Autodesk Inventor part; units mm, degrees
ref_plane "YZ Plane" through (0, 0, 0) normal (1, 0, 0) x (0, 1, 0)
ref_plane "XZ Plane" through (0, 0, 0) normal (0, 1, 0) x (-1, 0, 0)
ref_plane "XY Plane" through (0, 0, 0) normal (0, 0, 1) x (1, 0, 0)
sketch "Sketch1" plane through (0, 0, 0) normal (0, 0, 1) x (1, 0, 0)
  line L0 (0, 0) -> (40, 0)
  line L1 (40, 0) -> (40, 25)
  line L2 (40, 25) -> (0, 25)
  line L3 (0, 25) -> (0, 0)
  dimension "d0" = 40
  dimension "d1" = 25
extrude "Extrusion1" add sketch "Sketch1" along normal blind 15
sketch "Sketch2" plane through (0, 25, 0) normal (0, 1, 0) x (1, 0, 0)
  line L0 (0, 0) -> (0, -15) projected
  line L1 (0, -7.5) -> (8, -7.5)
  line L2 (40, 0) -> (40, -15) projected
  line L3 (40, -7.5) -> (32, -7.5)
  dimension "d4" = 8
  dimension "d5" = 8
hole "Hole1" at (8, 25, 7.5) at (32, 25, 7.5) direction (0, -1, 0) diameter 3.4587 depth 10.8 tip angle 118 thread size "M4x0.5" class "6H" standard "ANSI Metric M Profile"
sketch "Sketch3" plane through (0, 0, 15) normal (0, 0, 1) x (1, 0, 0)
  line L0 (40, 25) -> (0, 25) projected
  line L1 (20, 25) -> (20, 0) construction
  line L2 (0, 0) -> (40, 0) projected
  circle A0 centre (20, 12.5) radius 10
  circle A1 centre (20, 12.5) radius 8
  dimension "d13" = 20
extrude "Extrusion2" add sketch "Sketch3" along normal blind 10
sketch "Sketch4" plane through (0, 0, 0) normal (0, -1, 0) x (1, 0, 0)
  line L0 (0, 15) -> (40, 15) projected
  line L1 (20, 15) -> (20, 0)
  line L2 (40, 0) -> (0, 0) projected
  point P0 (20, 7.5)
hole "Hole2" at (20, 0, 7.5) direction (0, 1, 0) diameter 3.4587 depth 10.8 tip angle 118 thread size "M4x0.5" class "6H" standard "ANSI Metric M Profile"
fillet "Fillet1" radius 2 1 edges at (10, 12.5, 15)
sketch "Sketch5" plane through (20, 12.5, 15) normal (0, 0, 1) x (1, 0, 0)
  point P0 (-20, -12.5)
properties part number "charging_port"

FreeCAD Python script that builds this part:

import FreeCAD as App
import Part
import Sketcher

V = App.Vector
Q = App.Units.Quantity


def edges_at(feature, points):
    """Names of the edges that pass closest to the given points."""
    edges = feature.Shape.Edges
    near = lambda p: min(range(len(edges)), key=lambda i: edges[i].distToShape(Part.Vertex(*p))[0])
    return sorted({f"Edge{near(p) + 1}" for p in points})

doc = App.newDocument("Part")
params = doc.addObject("Spreadsheet::Sheet", "Params")
for row, (alias, value) in enumerate([
    ("sketch1_width", "40 mm"),
    ("sketch1_height", "25 mm"),
    ("pad1_length", "15 mm"),
    ("hole_diameter", "3.4587 mm"),
    ("hole_depth", "10.8 mm"),
    ("sketch3_diameter", "20 mm"),
    ("sketch3_diameter2", "16 mm"),
    ("pad2_length", "10 mm"),
    ("hole2_diameter", "3.4587 mm"),
    ("hole2_depth", "10.8 mm"),
    ("fillet_radius", "2 mm"),
], start=1):
    params.set(f"A{row}", alias)
    params.set(f"B{row}", "=" + value)
    params.setAlias(f"B{row}", alias)

body = doc.addObject("PartDesign::Body", "Body")

# Sketch on XY plane
sketch1 = body.newObject("Sketcher::SketchObject", "Sketch")
sketch1.AttachmentSupport = (doc.getObject("XY_Plane"), [""])
sketch1.MapMode = "FlatFace"
sketch1.addGeometry([
    Part.LineSegment(V(0, 25, 0), V(0, 0, 0)),
    Part.LineSegment(V(0, 0, 0), V(40, 0, 0)),
    Part.LineSegment(V(40, 0, 0), V(40, 25, 0)),
    Part.LineSegment(V(40, 25, 0), V(0, 25, 0)),
], False)
sketch1.addConstraint([
    Sketcher.Constraint("Coincident", 0, 2, 1, 1),
    Sketcher.Constraint("Coincident", 1, 2, 2, 1),
    Sketcher.Constraint("Coincident", 2, 2, 3, 1),
    Sketcher.Constraint("Coincident", 3, 2, 0, 1),
    Sketcher.Constraint("Vertical", 0),
    Sketcher.Constraint("Horizontal", 1),
    Sketcher.Constraint("Vertical", 2),
    Sketcher.Constraint("Horizontal", 3),
    Sketcher.Constraint("Coincident", 0, 2, -1, 1),
    Sketcher.Constraint("DistanceX", 1, 1, 1, 2, Q("40 mm")),
    Sketcher.Constraint("DistanceY", 0, 2, 0, 1, Q("25 mm")),
])
sketch1.setExpression("Constraints[9]", "Params.sketch1_width")
sketch1.setExpression("Constraints[10]", "Params.sketch1_height")
pad1 = body.newObject("PartDesign::Pad", "Pad")
pad1.Profile = sketch1
pad1.setExpression("Length", "Params.pad1_length")

# Sketch on XZ plane
sketch2 = body.newObject("Sketcher::SketchObject", "Sketch001")
sketch2.AttachmentSupport = (doc.getObject("XZ_Plane"), [""])
sketch2.MapMode = "FlatFace"
sketch2.AttachmentOffset = App.Placement(V(0, 0, -25), App.Rotation())
sketch2.addGeometry([
    Part.Circle(V(8, 7.5, 0), V(0, 0, 1), 1.72935),
    Part.Circle(V(32, 7.5, 0), V(0, 0, 1), 1.72935),
], False)
sketch2.addConstraint([
    Sketcher.Constraint("Equal", 0, 1),
    Sketcher.Constraint("Horizontal", 0, 3, 1, 3),
    Sketcher.Constraint("DistanceX", -1, 1, 0, 3, Q("8 mm")),
    Sketcher.Constraint("DistanceX", -1, 1, 1, 3, Q("32 mm")),
    Sketcher.Constraint("Diameter", 0, Q("3.4587 mm")),
    Sketcher.Constraint("DistanceY", -1, 1, 0, 3, Q("7.5 mm")),
])
doc.recompute()
hole = body.newObject("PartDesign::Hole", "Hole")
hole.Profile = sketch2
hole.ThreadType = "None"
hole.setExpression("Diameter", "Params.hole_diameter")
hole.DepthType = "Dimension"
hole.setExpression("Depth", "Params.hole_depth")
hole.DrillPoint = "Angled"
hole.DrillPointAngle = 118
hole.Reversed = True

# Sketch on XY plane
sketch3 = body.newObject("Sketcher::SketchObject", "Sketch002")
sketch3.AttachmentSupport = (doc.getObject("XY_Plane"), [""])
sketch3.MapMode = "FlatFace"
sketch3.AttachmentOffset = App.Placement(V(0, 0, 15), App.Rotation())
sketch3.addGeometry([
    Part.Circle(V(20, 12.5, 0), V(0, 0, 1), 10),
    Part.Circle(V(20, 12.5, 0), V(0, 0, 1), 8),
], False)
sketch3.addConstraint([
    Sketcher.Constraint("Coincident", 1, 3, 0, 3),
    Sketcher.Constraint("Diameter", 0, Q("20 mm")),
    Sketcher.Constraint("Diameter", 1, Q("16 mm")),
    Sketcher.Constraint("DistanceX", -1, 1, 0, 3, Q("20 mm")),
    Sketcher.Constraint("DistanceY", -1, 1, 0, 3, Q("12.5 mm")),
])
sketch3.setExpression("Constraints[1]", "Params.sketch3_diameter")
sketch3.setExpression("Constraints[2]", "Params.sketch3_diameter2")
pad2 = body.newObject("PartDesign::Pad", "Pad001")
pad2.Profile = sketch3
pad2.setExpression("Length", "Params.pad2_length")

# Sketch on XZ plane
sketch4 = body.newObject("Sketcher::SketchObject", "Sketch003")
sketch4.AttachmentSupport = (doc.getObject("XZ_Plane"), [""])
sketch4.MapMode = "FlatFace"
sketch4.addGeometry(Part.Circle(V(20, 7.5, 0), V(0, 0, 1), 1.72935), False)
sketch4.addConstraint([
    Sketcher.Constraint("DistanceX", -1, 1, 0, 3, Q("20 mm")),
    Sketcher.Constraint("Diameter", 0, Q("3.4587 mm")),
    Sketcher.Constraint("DistanceY", -1, 1, 0, 3, Q("7.5 mm")),
])
doc.recompute()
hole2 = body.newObject("PartDesign::Hole", "Hole001")
hole2.Profile = sketch4
hole2.ThreadType = "None"
hole2.setExpression("Diameter", "Params.hole2_diameter")
hole2.DepthType = "Dimension"
hole2.setExpression("Depth", "Params.hole2_depth")
hole2.DrillPoint = "Angled"
hole2.DrillPointAngle = 118
doc.recompute()

fillet = body.newObject("PartDesign::Fillet", "Fillet")
fillet.Base = (hole2, edges_at(hole2, [(10, 12.5, 15)]))
fillet.setExpression("Radius", "Params.fillet_radius")

doc.recompute()
